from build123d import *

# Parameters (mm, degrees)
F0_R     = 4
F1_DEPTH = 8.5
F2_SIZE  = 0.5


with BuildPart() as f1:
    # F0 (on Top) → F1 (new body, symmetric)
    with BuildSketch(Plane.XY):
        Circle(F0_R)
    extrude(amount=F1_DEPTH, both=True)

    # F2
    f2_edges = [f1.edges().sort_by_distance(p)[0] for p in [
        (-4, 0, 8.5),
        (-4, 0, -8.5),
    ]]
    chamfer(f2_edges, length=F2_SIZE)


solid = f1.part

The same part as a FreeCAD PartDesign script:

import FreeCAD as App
import Part
import Sketcher

V = App.Vector


def edges_at(feature, points):
    """Names of the edges that pass closest to the given points."""
    edges = feature.Shape.Edges
    near = lambda p: min(range(len(edges)), key=lambda i: edges[i].distToShape(Part.Vertex(*p))[0])
    return sorted({f"Edge{near(p) + 1}" for p in points})

doc = App.newDocument("Part")
body = doc.addObject("PartDesign::Body", "Body")

sketch1 = body.newObject("Sketcher::SketchObject", "Sketch")
sketch1.AttachmentSupport = (doc.getObject("XY_Plane"), [""])
sketch1.MapMode = "FlatFace"
sketch1.addGeometry(Part.Circle(V(0, 0, 0), V(0, 0, 1), 4), False)
sketch1.addConstraint([
    Sketcher.Constraint("Coincident", 0, 3, -1, 1),
    Sketcher.Constraint("Diameter", 0, 8.0),
])
pad1 = body.newObject("PartDesign::Pad", "Pad")
pad1.Profile = sketch1
pad1.Length = 17
pad1.Midplane = True
doc.recompute()

chamfer = body.newObject("PartDesign::Chamfer", "Chamfer")
chamfer.Base = (pad1, edges_at(pad1, [(-4, 0, 8.5), (-4, 0, -8.5)]))
chamfer.Size = 0.5

doc.recompute()
